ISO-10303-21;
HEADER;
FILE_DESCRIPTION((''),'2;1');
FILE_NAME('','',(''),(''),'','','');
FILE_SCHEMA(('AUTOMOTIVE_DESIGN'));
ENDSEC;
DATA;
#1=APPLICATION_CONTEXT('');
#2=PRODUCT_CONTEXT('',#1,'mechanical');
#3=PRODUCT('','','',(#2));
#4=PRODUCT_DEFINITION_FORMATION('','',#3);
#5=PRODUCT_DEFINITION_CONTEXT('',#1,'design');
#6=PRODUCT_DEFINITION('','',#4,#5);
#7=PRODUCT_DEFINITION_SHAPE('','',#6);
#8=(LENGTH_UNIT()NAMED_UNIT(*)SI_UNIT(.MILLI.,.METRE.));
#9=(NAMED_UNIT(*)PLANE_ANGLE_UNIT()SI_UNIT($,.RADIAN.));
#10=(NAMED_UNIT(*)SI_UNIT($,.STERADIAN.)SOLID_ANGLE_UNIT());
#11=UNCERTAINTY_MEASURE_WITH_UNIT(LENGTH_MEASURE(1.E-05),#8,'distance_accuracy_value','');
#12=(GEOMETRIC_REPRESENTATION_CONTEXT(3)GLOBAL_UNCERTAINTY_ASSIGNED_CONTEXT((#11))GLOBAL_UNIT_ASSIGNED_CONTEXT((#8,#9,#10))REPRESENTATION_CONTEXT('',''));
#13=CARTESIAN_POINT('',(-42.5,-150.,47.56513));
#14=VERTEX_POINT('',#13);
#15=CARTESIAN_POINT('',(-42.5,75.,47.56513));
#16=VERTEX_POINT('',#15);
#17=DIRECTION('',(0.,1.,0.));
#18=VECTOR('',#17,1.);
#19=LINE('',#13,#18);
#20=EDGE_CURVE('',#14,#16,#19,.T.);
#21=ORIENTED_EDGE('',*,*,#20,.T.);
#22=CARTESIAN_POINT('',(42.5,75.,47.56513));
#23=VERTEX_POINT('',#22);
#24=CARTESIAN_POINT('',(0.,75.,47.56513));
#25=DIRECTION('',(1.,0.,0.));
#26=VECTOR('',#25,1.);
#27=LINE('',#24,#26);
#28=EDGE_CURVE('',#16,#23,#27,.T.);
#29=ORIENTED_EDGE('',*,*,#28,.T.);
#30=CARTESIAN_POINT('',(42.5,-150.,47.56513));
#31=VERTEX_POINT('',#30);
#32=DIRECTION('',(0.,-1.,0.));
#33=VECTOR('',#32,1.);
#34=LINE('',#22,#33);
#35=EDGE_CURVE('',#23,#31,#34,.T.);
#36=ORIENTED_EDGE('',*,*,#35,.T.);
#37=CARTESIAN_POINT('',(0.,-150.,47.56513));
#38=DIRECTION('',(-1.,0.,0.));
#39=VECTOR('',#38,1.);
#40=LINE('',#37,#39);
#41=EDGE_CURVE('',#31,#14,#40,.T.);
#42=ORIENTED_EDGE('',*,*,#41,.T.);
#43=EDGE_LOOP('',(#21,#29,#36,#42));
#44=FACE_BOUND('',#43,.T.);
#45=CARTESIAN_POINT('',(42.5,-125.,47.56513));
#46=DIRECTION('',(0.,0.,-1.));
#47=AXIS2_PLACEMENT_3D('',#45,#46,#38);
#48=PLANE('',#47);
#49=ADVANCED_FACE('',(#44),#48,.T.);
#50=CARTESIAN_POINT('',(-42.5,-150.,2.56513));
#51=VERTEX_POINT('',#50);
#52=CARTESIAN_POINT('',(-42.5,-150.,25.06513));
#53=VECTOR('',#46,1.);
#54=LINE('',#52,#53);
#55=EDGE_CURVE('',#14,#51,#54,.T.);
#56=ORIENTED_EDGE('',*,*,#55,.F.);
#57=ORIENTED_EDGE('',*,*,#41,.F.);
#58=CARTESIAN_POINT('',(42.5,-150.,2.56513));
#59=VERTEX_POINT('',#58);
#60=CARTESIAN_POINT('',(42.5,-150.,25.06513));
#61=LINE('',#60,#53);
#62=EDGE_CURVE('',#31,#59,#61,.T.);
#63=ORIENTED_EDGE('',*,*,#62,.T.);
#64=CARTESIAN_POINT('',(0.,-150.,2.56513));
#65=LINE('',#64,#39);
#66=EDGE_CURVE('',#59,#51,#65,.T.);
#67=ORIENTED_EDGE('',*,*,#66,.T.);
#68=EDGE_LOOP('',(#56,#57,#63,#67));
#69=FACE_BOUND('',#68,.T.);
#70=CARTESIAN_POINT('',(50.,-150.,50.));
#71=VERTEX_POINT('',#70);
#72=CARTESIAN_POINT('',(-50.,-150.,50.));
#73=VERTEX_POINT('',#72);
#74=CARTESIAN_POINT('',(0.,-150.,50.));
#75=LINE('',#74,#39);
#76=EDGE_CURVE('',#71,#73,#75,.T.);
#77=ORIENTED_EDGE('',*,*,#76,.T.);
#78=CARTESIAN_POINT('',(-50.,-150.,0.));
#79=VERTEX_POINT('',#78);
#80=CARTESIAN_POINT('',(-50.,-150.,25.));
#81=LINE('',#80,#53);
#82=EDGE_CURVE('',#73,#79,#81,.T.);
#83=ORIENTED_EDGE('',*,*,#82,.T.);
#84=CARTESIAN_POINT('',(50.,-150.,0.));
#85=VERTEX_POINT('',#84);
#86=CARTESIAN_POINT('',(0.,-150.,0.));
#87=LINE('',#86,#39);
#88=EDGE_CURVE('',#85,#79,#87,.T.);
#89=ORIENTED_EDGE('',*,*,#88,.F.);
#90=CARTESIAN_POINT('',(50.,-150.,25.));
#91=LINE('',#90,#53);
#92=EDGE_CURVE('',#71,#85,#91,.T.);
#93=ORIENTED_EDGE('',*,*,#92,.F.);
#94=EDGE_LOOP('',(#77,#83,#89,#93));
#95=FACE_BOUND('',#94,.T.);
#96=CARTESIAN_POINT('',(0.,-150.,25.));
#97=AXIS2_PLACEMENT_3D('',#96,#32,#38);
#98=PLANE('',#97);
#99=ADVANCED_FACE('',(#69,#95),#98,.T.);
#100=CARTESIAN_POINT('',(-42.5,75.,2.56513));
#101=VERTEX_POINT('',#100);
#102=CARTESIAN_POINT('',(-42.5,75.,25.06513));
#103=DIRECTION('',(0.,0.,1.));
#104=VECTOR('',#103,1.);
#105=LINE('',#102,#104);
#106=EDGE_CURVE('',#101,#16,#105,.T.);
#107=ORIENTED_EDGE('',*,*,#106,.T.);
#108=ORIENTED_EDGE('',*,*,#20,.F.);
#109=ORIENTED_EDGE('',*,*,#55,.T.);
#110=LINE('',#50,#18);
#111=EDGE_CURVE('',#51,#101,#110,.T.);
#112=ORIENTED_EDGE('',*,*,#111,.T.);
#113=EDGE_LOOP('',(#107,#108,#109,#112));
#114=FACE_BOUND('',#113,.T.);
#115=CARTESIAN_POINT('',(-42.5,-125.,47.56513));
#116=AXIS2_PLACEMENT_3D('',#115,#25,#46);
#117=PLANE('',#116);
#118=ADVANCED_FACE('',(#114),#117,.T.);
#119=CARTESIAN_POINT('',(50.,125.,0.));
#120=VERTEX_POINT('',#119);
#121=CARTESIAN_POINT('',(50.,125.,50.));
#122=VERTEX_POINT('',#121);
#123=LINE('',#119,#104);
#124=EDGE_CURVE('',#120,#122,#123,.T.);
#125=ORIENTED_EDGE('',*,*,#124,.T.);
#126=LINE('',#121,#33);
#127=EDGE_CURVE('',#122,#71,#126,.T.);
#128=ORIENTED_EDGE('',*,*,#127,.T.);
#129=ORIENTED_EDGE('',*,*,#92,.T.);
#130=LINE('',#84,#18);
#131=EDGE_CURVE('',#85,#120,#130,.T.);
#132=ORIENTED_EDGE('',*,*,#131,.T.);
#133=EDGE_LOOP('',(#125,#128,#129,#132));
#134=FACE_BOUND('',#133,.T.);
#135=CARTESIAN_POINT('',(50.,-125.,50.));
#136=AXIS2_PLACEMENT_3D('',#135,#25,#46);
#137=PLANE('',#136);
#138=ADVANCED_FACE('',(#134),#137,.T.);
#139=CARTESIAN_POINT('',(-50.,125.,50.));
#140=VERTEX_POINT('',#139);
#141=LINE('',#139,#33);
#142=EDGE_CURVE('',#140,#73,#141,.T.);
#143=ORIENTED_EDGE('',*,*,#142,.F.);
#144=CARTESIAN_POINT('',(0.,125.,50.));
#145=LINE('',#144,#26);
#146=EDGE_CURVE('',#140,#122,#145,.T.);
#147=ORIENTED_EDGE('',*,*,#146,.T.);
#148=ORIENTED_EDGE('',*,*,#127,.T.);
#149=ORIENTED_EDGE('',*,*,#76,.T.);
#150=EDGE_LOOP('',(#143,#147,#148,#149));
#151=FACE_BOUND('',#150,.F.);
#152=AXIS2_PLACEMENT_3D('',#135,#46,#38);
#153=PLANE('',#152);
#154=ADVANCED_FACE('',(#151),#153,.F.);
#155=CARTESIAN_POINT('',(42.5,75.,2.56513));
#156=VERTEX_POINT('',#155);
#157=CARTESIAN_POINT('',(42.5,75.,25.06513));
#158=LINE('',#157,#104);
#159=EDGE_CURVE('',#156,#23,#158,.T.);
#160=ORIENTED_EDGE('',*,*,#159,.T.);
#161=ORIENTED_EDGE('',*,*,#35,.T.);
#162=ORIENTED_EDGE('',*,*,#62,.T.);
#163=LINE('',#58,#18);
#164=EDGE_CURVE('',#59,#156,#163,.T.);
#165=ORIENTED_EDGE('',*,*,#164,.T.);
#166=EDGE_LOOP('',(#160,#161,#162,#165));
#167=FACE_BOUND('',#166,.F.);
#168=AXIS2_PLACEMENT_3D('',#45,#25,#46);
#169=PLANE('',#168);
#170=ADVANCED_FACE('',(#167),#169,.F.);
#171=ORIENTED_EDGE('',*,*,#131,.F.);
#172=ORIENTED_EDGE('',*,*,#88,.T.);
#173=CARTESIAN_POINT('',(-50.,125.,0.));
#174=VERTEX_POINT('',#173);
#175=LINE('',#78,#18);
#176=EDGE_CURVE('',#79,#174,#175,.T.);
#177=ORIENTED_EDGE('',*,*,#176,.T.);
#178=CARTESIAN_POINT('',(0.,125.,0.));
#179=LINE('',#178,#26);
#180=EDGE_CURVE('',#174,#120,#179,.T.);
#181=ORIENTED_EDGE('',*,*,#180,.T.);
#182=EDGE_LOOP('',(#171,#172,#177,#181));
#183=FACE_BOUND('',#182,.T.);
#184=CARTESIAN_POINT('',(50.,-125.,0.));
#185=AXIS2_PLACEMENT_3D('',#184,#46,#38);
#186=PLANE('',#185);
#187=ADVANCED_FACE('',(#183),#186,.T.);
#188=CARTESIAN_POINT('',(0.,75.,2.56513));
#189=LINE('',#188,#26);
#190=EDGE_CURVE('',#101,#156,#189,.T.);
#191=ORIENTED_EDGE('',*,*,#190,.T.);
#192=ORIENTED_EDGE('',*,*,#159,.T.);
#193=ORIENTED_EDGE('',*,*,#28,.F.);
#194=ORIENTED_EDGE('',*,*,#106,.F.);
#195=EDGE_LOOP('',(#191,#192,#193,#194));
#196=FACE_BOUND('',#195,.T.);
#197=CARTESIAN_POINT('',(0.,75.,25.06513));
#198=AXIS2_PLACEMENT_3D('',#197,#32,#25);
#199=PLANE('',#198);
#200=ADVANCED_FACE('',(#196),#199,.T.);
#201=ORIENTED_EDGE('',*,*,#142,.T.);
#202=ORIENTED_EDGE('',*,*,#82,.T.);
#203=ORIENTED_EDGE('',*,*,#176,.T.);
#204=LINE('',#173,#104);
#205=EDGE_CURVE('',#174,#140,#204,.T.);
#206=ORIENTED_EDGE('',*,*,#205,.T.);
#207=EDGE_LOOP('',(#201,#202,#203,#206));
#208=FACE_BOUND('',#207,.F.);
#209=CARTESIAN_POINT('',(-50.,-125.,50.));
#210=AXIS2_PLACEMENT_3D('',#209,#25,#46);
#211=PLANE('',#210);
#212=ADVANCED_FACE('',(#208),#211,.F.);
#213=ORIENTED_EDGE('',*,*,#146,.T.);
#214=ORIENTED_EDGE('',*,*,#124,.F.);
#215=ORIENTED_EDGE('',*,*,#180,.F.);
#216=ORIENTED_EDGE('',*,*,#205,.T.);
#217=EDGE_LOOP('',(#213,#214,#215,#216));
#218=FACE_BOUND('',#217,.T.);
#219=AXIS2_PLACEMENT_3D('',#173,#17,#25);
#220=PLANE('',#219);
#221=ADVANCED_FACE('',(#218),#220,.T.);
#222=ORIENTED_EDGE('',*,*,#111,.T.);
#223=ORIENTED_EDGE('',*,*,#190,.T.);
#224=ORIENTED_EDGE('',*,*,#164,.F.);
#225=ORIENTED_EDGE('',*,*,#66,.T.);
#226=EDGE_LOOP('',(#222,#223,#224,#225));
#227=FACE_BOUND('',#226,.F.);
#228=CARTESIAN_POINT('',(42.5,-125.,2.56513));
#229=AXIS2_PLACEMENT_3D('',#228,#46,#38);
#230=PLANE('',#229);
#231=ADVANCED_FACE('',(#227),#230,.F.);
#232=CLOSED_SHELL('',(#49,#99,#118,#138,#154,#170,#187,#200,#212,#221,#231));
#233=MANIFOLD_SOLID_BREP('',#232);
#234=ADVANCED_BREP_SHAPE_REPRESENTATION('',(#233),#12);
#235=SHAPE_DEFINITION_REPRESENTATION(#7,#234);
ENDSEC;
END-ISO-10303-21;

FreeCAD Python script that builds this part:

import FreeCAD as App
import Part
import Sketcher

V = App.Vector
Q = App.Units.Quantity


def add_polygon(sketch, points):
    """Adds a closed chain of lines whose ends are joined by coincident constraints."""
    first, n = sketch.GeometryCount, len(points)
    for a, b in zip(points, points[1:] + points[:1]):
        sketch.addGeometry(Part.LineSegment(App.Vector(*a, 0), App.Vector(*b, 0)), False)
    for i in range(n):
        sketch.addConstraint(Sketcher.Constraint("Coincident", first + i, 2, first + (i + 1) % n, 1))

doc = App.newDocument("Part")
body = doc.addObject("PartDesign::Body", "Body")

# Sketch on XY plane
sketch1 = body.newObject("Sketcher::SketchObject", "Sketch")
sketch1.AttachmentSupport = (doc.getObject("XY_Plane"), [""])
sketch1.MapMode = "FlatFace"
add_polygon(sketch1, [(-50, 125), (-50, -125), (50, -125), (50, 125)])  # lines 0-3
sketch1.addConstraint(Sketcher.Constraint("Vertical", 0))
sketch1.addConstraint(Sketcher.Constraint("Horizontal", 1))
sketch1.addConstraint(Sketcher.Constraint("Vertical", 2))
sketch1.addConstraint(Sketcher.Constraint("Horizontal", 3))
sketch1.addConstraint(Sketcher.Constraint("Symmetric", 0, 2, 2, 2, -1, 1))
sketch1.addConstraint(Sketcher.Constraint("DistanceX", 1, 1, 1, 2, Q("100 mm")))
sketch1.addConstraint(Sketcher.Constraint("DistanceY", 0, 2, 0, 1, Q("250 mm")))
pad1 = body.newObject("PartDesign::Pad", "Pad")
pad1.Profile = sketch1
pad1.Length = 50

# Sketch on XZ plane
sketch2 = body.newObject("Sketcher::SketchObject", "Sketch001")
sketch2.AttachmentSupport = (doc.getObject("XZ_Plane"), [""])
sketch2.MapMode = "FlatFace"
sketch2.AttachmentOffset = App.Placement(V(0, 0, 125), App.Rotation())
add_polygon(sketch2, [(-42, 48), (-42, 3), (42, 3), (42, 48)])  # lines 0-3
sketch2.addConstraint(Sketcher.Constraint("Vertical", 0))
sketch2.addConstraint(Sketcher.Constraint("Horizontal", 1))
sketch2.addConstraint(Sketcher.Constraint("Vertical", 2))
sketch2.addConstraint(Sketcher.Constraint("Horizontal", 3))
sketch2.addConstraint(Sketcher.Constraint("DistanceX", 1, 1, 1, 2, Q("85 mm")))
sketch2.addConstraint(Sketcher.Constraint("DistanceY", 0, 2, 0, 1, Q("45 mm")))
sketch2.addConstraint(Sketcher.Constraint("DistanceX", 0, 2, -1, 1, Q("42.5 mm")))
sketch2.addConstraint(Sketcher.Constraint("DistanceY", -1, 1, 0, 2, Q("2.56513 mm")))
pocket1 = body.newObject("PartDesign::Pocket", "Pocket")
pocket1.Profile = sketch2
pocket1.Length = 200

# Sketch on XZ plane
sketch3 = body.newObject("Sketcher::SketchObject", "Sketch002")
sketch3.AttachmentSupport = (doc.getObject("XZ_Plane"), [""])
sketch3.MapMode = "FlatFace"
sketch3.AttachmentOffset = App.Placement(V(0, 0, 125), App.Rotation())
add_polygon(sketch3, [(50, 0), (50, 50), (-50, 50), (-50, 0)])  # lines 0-3
add_polygon(sketch3, [(-42, 48), (42, 48), (42, 3), (-42, 3)])  # lines 4-7
sketch3.addConstraint(Sketcher.Constraint("Vertical", 0))
sketch3.addConstraint(Sketcher.Constraint("Horizontal", 1))
sketch3.addConstraint(Sketcher.Constraint("Vertical", 2))
sketch3.addConstraint(Sketcher.Constraint("Horizontal", 3))
sketch3.addConstraint(Sketcher.Constraint("Horizontal", 4))
sketch3.addConstraint(Sketcher.Constraint("Vertical", 5))
sketch3.addConstraint(Sketcher.Constraint("Horizontal", 6))
sketch3.addConstraint(Sketcher.Constraint("Vertical", 7))
sketch3.addConstraint(Sketcher.Constraint("Symmetric", 2, 2, 3, 2, -1, 1))
sketch3.addConstraint(Sketcher.Constraint("DistanceX", 1, 2, 1, 1, Q("100 mm")))
sketch3.addConstraint(Sketcher.Constraint("DistanceX", 4, 1, 4, 2, Q("85 mm")))
sketch3.addConstraint(Sketcher.Constraint("DistanceY", 0, 1, 0, 2, Q("50 mm")))
sketch3.addConstraint(Sketcher.Constraint("DistanceY", 5, 2, 5, 1, Q("45 mm")))
sketch3.addConstraint(Sketcher.Constraint("DistanceX", -1, 1, 4, 2, Q("42.5 mm")))
sketch3.addConstraint(Sketcher.Constraint("DistanceY", -1, 1, 4, 2, Q("47.56513 mm")))
pad2 = body.newObject("PartDesign::Pad", "Pad001")
pad2.Profile = sketch3
pad2.Length = 25

doc.recompute()
